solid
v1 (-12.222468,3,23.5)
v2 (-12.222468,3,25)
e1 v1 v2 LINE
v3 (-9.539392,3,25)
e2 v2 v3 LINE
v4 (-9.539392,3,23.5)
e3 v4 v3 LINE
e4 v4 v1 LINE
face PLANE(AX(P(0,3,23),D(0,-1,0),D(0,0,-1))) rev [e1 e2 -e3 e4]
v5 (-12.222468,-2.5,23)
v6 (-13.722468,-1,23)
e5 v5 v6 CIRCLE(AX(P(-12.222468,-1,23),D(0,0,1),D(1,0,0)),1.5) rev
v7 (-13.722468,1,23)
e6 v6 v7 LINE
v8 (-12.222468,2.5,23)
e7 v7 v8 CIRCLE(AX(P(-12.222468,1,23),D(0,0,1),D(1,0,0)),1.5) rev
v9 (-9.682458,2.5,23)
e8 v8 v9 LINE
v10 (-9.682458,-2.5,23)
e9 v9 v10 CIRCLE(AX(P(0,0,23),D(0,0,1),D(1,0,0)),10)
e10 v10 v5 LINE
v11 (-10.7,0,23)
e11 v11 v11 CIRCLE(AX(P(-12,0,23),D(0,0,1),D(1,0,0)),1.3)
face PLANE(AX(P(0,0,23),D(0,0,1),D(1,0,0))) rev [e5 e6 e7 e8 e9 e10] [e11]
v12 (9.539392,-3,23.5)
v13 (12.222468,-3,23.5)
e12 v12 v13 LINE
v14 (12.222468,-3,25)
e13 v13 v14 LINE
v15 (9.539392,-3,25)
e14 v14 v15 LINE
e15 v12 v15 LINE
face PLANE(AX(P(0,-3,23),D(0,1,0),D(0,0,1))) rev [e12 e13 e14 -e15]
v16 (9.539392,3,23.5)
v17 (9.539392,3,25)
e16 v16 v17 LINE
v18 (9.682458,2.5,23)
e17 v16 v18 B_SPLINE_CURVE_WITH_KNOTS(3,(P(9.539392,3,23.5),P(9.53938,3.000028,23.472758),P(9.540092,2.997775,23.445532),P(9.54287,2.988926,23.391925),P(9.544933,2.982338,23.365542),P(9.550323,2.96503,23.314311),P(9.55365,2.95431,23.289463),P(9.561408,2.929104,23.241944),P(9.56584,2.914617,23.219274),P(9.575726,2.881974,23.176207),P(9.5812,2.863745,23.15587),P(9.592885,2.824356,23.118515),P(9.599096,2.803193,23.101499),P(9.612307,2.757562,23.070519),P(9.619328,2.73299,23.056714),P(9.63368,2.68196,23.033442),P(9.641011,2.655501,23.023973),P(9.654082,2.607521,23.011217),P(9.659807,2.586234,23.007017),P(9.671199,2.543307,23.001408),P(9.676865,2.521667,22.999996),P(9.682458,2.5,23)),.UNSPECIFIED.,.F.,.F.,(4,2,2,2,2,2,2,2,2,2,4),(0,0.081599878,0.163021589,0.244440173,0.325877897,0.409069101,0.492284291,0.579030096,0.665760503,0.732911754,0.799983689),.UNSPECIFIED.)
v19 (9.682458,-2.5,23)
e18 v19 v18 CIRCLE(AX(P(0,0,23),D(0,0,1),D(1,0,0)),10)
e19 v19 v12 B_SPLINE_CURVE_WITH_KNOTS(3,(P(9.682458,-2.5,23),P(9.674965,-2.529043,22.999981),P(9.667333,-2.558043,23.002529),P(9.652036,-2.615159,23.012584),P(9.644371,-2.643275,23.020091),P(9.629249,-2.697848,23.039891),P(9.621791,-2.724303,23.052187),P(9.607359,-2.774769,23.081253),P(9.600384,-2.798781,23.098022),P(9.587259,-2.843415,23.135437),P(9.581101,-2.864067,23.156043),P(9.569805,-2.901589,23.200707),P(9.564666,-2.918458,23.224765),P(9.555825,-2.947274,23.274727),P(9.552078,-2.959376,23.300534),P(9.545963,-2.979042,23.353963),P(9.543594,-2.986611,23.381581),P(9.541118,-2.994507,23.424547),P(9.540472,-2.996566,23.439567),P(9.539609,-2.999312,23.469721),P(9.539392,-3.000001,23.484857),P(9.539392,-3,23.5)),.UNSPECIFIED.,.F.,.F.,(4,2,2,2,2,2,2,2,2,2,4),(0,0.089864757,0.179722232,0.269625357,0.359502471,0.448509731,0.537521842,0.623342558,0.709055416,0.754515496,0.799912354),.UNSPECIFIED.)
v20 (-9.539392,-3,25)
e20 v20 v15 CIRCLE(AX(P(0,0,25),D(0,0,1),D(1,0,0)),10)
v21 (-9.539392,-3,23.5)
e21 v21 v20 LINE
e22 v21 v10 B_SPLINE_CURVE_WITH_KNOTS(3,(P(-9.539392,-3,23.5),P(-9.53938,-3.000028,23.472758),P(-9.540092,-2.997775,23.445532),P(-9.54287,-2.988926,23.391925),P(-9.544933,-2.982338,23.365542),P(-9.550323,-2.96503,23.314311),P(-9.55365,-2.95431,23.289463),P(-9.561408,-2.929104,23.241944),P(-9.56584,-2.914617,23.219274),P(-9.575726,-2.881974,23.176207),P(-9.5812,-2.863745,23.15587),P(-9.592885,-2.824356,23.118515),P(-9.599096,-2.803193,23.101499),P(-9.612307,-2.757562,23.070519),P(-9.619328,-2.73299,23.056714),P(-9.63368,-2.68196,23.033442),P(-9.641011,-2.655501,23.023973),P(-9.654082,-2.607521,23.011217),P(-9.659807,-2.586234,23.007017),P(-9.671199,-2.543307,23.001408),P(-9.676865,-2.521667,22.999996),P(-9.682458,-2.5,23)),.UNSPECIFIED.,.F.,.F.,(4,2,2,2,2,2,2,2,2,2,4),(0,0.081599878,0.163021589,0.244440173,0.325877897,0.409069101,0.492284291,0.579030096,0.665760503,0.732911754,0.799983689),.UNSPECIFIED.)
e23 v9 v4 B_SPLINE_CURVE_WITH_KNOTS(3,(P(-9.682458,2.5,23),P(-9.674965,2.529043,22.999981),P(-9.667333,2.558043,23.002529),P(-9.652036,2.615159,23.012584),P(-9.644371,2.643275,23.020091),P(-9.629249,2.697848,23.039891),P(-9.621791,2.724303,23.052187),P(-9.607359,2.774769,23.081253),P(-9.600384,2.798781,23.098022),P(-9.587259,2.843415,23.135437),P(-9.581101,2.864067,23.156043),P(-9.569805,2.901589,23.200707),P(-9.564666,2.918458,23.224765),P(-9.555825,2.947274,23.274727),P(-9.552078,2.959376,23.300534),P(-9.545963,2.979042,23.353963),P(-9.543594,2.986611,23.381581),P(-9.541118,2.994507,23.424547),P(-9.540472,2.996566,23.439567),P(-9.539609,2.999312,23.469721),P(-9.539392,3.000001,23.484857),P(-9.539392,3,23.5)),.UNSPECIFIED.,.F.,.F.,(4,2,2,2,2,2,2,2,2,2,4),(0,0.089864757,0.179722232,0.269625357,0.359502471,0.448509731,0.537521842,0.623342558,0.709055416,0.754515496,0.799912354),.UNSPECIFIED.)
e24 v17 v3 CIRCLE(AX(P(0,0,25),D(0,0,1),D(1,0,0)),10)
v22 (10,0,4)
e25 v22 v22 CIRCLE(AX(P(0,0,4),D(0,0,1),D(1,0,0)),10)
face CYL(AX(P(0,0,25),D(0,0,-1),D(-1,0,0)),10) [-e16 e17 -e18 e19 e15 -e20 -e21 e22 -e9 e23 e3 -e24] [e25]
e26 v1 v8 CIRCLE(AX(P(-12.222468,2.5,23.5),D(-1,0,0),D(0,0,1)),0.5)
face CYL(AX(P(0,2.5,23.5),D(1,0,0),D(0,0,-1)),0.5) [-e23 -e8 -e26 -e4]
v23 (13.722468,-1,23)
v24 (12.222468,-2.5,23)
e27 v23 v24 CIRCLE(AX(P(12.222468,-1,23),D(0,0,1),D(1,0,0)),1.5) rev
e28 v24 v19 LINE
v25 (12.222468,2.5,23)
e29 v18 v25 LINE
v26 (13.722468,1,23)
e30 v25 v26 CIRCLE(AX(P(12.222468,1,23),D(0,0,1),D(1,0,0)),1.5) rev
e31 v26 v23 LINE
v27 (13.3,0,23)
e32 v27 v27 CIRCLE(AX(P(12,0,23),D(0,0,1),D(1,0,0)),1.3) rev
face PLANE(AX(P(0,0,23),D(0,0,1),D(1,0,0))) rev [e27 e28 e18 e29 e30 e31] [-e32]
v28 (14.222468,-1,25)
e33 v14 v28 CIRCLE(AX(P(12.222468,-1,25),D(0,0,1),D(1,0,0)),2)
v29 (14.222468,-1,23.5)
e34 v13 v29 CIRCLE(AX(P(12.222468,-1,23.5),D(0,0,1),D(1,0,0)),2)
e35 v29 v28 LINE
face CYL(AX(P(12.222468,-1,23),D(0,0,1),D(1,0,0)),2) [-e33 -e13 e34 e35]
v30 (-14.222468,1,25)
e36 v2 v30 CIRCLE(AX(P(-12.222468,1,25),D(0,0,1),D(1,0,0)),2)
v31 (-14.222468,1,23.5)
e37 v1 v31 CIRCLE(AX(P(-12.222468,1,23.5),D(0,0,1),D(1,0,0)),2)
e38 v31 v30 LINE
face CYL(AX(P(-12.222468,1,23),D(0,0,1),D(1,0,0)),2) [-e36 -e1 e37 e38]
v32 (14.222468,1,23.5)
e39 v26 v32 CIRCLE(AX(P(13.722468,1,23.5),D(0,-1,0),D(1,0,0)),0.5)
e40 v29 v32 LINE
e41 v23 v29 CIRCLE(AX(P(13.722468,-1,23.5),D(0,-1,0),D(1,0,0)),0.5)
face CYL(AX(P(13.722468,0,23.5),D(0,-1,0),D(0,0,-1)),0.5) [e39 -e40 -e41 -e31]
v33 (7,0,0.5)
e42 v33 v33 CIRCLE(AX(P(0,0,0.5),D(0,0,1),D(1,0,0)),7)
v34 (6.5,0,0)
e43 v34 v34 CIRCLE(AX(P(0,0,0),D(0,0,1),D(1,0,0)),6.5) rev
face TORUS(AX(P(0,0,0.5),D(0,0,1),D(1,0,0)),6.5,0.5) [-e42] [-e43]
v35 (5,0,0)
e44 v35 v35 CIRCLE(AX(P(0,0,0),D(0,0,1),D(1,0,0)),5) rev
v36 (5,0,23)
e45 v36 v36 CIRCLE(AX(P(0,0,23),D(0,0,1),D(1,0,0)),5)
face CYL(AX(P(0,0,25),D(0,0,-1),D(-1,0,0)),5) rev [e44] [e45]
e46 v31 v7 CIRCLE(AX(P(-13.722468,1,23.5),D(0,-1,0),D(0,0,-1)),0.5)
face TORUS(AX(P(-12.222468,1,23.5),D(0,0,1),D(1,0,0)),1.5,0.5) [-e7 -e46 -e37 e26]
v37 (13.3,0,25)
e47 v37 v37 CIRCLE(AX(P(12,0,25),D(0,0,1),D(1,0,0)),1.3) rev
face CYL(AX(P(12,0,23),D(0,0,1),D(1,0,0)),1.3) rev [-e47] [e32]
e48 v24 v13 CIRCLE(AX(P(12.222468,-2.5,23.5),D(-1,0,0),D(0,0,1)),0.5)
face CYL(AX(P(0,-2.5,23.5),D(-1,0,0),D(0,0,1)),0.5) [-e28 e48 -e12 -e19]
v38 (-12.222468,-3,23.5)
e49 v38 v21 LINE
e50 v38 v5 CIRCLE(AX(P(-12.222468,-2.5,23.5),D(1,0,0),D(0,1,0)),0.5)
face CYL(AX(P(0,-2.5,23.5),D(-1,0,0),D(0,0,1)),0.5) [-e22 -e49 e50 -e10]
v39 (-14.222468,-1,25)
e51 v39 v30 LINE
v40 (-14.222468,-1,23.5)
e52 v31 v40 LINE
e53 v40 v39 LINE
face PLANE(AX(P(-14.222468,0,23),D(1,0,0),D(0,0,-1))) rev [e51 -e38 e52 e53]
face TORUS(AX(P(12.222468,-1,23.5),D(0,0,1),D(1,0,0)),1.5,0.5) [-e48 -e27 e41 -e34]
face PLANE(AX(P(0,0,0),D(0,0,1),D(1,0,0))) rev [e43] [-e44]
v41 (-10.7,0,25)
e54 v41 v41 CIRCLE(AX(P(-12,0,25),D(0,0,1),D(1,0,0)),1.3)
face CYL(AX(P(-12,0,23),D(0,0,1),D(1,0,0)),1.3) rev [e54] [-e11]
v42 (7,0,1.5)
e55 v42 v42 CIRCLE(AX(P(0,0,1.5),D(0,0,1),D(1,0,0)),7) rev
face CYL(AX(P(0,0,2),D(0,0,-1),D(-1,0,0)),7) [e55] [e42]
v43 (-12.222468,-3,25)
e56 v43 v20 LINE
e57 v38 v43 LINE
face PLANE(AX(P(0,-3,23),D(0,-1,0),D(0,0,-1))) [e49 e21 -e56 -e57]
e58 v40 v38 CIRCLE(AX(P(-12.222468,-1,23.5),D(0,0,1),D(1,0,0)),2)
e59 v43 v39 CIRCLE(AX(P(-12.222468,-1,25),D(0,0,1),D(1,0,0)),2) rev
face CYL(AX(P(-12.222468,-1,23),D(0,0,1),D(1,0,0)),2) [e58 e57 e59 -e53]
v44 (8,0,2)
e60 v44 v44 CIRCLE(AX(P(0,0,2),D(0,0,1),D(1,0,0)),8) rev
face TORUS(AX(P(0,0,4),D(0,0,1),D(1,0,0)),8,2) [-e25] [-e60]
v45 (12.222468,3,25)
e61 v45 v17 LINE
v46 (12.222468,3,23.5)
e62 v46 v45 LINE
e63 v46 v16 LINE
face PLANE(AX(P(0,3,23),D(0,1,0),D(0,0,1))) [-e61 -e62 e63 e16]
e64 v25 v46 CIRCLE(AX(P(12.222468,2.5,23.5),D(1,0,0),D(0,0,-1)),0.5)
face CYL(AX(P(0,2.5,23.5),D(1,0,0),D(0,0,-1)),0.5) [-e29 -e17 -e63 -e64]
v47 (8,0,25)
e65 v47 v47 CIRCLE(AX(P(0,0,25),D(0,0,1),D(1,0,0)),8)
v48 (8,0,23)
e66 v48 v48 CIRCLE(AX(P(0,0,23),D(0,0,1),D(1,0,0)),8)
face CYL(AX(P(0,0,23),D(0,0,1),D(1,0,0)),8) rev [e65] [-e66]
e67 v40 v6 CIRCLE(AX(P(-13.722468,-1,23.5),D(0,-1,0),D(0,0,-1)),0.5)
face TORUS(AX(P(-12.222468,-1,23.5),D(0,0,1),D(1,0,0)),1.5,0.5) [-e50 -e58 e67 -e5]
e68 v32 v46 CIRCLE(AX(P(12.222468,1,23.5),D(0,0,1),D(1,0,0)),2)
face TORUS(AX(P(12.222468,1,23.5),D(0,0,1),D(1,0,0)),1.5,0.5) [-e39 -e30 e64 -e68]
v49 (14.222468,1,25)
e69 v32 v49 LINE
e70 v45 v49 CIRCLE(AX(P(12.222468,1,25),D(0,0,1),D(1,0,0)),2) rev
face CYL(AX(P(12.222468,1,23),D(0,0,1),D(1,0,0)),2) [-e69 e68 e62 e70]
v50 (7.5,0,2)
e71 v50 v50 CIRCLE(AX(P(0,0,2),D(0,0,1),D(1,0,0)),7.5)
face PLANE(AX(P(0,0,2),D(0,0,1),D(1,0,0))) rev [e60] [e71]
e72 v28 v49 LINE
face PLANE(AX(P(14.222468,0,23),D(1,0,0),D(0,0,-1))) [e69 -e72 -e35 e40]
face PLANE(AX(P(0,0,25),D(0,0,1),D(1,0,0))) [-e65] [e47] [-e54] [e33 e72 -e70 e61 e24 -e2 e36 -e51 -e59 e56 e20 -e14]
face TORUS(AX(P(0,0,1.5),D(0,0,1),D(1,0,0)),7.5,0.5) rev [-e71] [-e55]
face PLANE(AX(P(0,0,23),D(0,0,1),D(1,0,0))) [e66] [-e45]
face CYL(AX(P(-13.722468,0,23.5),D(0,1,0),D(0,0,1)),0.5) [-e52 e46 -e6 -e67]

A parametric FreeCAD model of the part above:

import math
import FreeCAD as App
import Part
import Sketcher

V = App.Vector
Q = App.Units.Quantity


def edges_at(feature, points):
    """Names of the edges that pass closest to the given points."""
    edges = feature.Shape.Edges
    near = lambda p: min(range(len(edges)), key=lambda i: edges[i].distToShape(Part.Vertex(*p))[0])
    return sorted({f"Edge{near(p) + 1}" for p in points})

doc = App.newDocument("Part")
body = doc.addObject("PartDesign::Body", "Body")

sketch1 = body.newObject("Sketcher::SketchObject", "Sketch")
sketch1.AttachmentSupport = (doc.getObject("XY_Plane"), [""])
sketch1.MapMode = "FlatFace"
sketch1.addGeometry(Part.Circle(V(0, 0, 0), V(0, 0, 1), 10), False)
sketch1.addConstraint(Sketcher.Constraint("Coincident", 0, 3, -1, 1))
sketch1.addConstraint(Sketcher.Constraint("Diameter", 0, Q("20 mm")))
pad1 = body.newObject("PartDesign::Pad", "Pad")
pad1.Profile = sketch1
pad1.Length = 25

sketch2 = body.newObject("Sketcher::SketchObject", "Sketch001")
sketch2.AttachmentSupport = (doc.getObject("XY_Plane"), [""])
sketch2.MapMode = "FlatFace"
sketch2.addGeometry(Part.Circle(V(0, 0, 0), V(0, 0, 1), 5), False)
sketch2.addConstraint(Sketcher.Constraint("Coincident", 0, 3, -1, 1))
sketch2.addConstraint(Sketcher.Constraint("Diameter", 0, Q("10 mm")))
pocket1 = body.newObject("PartDesign::Pocket", "Pocket")
pocket1.Profile = sketch2
pocket1.Type = "ThroughAll"
pocket1.Midplane = True

sketch3 = body.newObject("Sketcher::SketchObject", "Sketch002")
sketch3.AttachmentSupport = (doc.getObject("XY_Plane"), [""])
sketch3.MapMode = "FlatFace"
sketch3.addGeometry(Part.Circle(V(0, 0, 0), V(0, 0, 1), 10), False)
sketch3.addGeometry(Part.Circle(V(0, 0, 0), V(0, 0, 1), 7), False)
sketch3.addGeometry(Part.Circle(V(0, 0, 0), V(0, 0, 1), 5), False)
sketch3.addConstraint(Sketcher.Constraint("Coincident", 0, 3, -1, 1))
sketch3.addConstraint(Sketcher.Constraint("Coincident", 1, 3, -1, 1))
sketch3.addConstraint(Sketcher.Constraint("Coincident", 2, 3, -1, 1))
sketch3.addConstraint(Sketcher.Constraint("Diameter", 0, Q("20 mm")))
sketch3.addConstraint(Sketcher.Constraint("Diameter", 1, Q("14 mm")))
sketch3.addConstraint(Sketcher.Constraint("Diameter", 2, Q("10 mm")))
pocket2 = body.newObject("PartDesign::Pocket", "Pocket001")
pocket2.Profile = sketch3
pocket2.Length = 2
pocket2.Reversed = True

sketch4 = body.newObject("Sketcher::SketchObject", "Sketch003")
sketch4.AttachmentSupport = (doc.getObject("XY_Plane"), [""])
sketch4.MapMode = "FlatFace"
sketch4.AttachmentOffset = App.Placement(V(0, 0, 25), App.Rotation())
sketch4.addGeometry(Part.Circle(V(0, 0, 0), V(0, 0, 1), 8), False)
sketch4.addConstraint(Sketcher.Constraint("Coincident", 0, 3, -1, 1))
sketch4.addConstraint(Sketcher.Constraint("Diameter", 0, Q("16 mm")))
pocket3 = body.newObject("PartDesign::Pocket", "Pocket002")
pocket3.Profile = sketch4
pocket3.Length = 2

sketch5 = body.newObject("Sketcher::SketchObject", "Sketch004")
sketch5.AttachmentSupport = (doc.getObject("XY_Plane"), [""])
sketch5.MapMode = "FlatFace"
sketch5.AttachmentOffset = App.Placement(V(0, 0, 25), App.Rotation())
sketch5.addGeometry(Part.LineSegment(V(-14.2, 1, 0), V(-14.2, -1, 0)), False)
sketch5.addGeometry(Part.ArcOfCircle(Part.Circle(V(-12.2, -1, 0), V(0, 0, 1), 2), math.radians(-180), math.radians(-90)), False)
sketch5.addGeometry(Part.LineSegment(V(-12.2, -3, 0), V(-9.5, -3, 0)), False)
sketch5.addGeometry(Part.ArcOfCircle(Part.Circle(V(0, 0, 0), V(0, 0, 1), 10), math.radians(163), math.radians(197)), False)
sketch5.addGeometry(Part.LineSegment(V(-9.5, 3, 0), V(-12.2, 3, 0)), False)
sketch5.addGeometry(Part.ArcOfCircle(Part.Circle(V(-12.2, 1, 0), V(0, 0, 1), 2), math.radians(90), math.radians(180)), False)
sketch5.addGeometry(Part.Circle(V(-12, 0, 0), V(0, 0, 1), 1.3), False)
sketch5.addGeometry(Part.ArcOfCircle(Part.Circle(V(0, 0, 0), V(0, 0, 1), 10), math.radians(-17.46), math.radians(0)), False)
sketch5.addGeometry(Part.LineSegment(V(9.5, -3, 0), V(12.2, -3, 0)), False)
sketch5.addGeometry(Part.ArcOfCircle(Part.Circle(V(12.2, -1, 0), V(0, 0, 1), 2), math.radians(-90), math.radians(0)), False)
sketch5.addGeometry(Part.LineSegment(V(14.2, -1, 0), V(14.2, 1, 0)), False)
sketch5.addGeometry(Part.ArcOfCircle(Part.Circle(V(12.2, 1, 0), V(0, 0, 1), 2), math.radians(0), math.radians(90)), False)
sketch5.addGeometry(Part.LineSegment(V(12.2, 3, 0), V(9.5, 3, 0)), False)
sketch5.addGeometry(Part.ArcOfCircle(Part.Circle(V(0, 0, 0), V(0, 0, 1), 10), math.radians(0), math.radians(17.46)), False)
sketch5.addGeometry(Part.Circle(V(12, 0, 0), V(0, 0, 1), 1.3), False)
sketch5.addConstraint(Sketcher.Constraint("Tangent", 0, 2, 1, 1))
sketch5.addConstraint(Sketcher.Constraint("Tangent", 1, 2, 2, 1))
sketch5.addConstraint(Sketcher.Constraint("Coincident", 2, 2, 3, 2))
sketch5.addConstraint(Sketcher.Constraint("Coincident", 3, 1, 4, 1))
sketch5.addConstraint(Sketcher.Constraint("Tangent", 4, 2, 5, 1))
sketch5.addConstraint(Sketcher.Constraint("Tangent", 5, 2, 0, 1))
sketch5.addConstraint(Sketcher.Constraint("Coincident", 7, 1, 8, 1))
sketch5.addConstraint(Sketcher.Constraint("Tangent", 8, 2, 9, 1))
sketch5.addConstraint(Sketcher.Constraint("Tangent", 9, 2, 10, 1))
sketch5.addConstraint(Sketcher.Constraint("Tangent", 10, 2, 11, 1))
sketch5.addConstraint(Sketcher.Constraint("Tangent", 11, 2, 12, 1))
sketch5.addConstraint(Sketcher.Constraint("Coincident", 12, 2, 13, 2))
sketch5.addConstraint(Sketcher.Constraint("Tangent", 13, 1, 7, 2))
sketch5.addConstraint(Sketcher.Constraint("Vertical", 0))
sketch5.addConstraint(Sketcher.Constraint("Horizontal", 2))
sketch5.addConstraint(Sketcher.Constraint("Horizontal", 4))
sketch5.addConstraint(Sketcher.Constraint("Horizontal", 8))
sketch5.addConstraint(Sketcher.Constraint("Vertical", 10))
sketch5.addConstraint(Sketcher.Constraint("Horizontal", 12))
sketch5.addConstraint(Sketcher.Constraint("Coincident", 3, 3, -1, 1))
sketch5.addConstraint(Sketcher.Constraint("Coincident", 7, 3, -1, 1))
sketch5.addConstraint(Sketcher.Constraint("Equal", 1, 5))
sketch5.addConstraint(Sketcher.Constraint("Equal", 3, 7))
sketch5.addConstraint(Sketcher.Constraint("Equal", 5, 9))
sketch5.addConstraint(Sketcher.Constraint("Equal", 9, 11))
sketch5.addConstraint(Sketcher.Constraint("Equal", 7, 13))
sketch5.addConstraint(Sketcher.Constraint("Equal", 6, 14))
sketch5.addConstraint(Sketcher.Constraint("Symmetric", 5, 3, 9, 3, -1, 1))
sketch5.addConstraint(Sketcher.Constraint("Symmetric", 6, 3, 14, 3, -1, 1))
sketch5.addConstraint(Sketcher.Constraint("PointOnObject", 6, 3, -1))
sketch5.addConstraint(Sketcher.Constraint("PointOnObject", 13, 1, -1))
sketch5.addConstraint(Sketcher.Constraint("Horizontal", 1, 3, 9, 3))
sketch5.addConstraint(Sketcher.Constraint("Horizontal", 5, 3, 11, 3))
sketch5.addConstraint(Sketcher.Constraint("Radius", 1, Q("2 mm")))
sketch5.addConstraint(Sketcher.Constraint("Radius", 3, Q("10 mm")))
sketch5.addConstraint(Sketcher.Constraint("Diameter", 6, Q("2.6 mm")))
sketch5.addConstraint(Sketcher.Constraint("DistanceY", 0, 2, 0, 1, Q("2 mm")))
sketch5.addConstraint(Sketcher.Constraint("DistanceX", 6, 3, -1, 1, Q("12 mm")))
sketch5.addConstraint(Sketcher.Constraint("DistanceX", 2, 1, 2, 2, Q("2.683076 mm")))
pad2 = body.newObject("PartDesign::Pad", "Pad001")
pad2.Profile = sketch5
pad2.Length = 2
pad2.Reversed = True
doc.recompute()

fillet = body.newObject("PartDesign::Fillet", "Fillet")
fillet.Base = (pad2, edges_at(pad2, [(-10, 0, 2)]))
fillet.Radius = 2
doc.recompute()

fillet2 = body.newObject("PartDesign::Fillet", "Fillet001")
fillet2.Base = (fillet, edges_at(fillet, [
    (-7, 0, 2),
    (-7, 0, 0),
    (-13.637, 2.414, 23),
    (-10.881, -3, 23),
    (-13.637, -2.414, 23),
    (-14.222, 0, 23),
    (-10.881, 3, 23),
    (14.222, 0, 23),
    (13.637, -2.414, 23),
    (10.881, 3, 23),
    (13.637, 2.414, 23),
    (10.881, -3, 23),
]))
fillet2.Radius = 0.5

doc.recompute()
